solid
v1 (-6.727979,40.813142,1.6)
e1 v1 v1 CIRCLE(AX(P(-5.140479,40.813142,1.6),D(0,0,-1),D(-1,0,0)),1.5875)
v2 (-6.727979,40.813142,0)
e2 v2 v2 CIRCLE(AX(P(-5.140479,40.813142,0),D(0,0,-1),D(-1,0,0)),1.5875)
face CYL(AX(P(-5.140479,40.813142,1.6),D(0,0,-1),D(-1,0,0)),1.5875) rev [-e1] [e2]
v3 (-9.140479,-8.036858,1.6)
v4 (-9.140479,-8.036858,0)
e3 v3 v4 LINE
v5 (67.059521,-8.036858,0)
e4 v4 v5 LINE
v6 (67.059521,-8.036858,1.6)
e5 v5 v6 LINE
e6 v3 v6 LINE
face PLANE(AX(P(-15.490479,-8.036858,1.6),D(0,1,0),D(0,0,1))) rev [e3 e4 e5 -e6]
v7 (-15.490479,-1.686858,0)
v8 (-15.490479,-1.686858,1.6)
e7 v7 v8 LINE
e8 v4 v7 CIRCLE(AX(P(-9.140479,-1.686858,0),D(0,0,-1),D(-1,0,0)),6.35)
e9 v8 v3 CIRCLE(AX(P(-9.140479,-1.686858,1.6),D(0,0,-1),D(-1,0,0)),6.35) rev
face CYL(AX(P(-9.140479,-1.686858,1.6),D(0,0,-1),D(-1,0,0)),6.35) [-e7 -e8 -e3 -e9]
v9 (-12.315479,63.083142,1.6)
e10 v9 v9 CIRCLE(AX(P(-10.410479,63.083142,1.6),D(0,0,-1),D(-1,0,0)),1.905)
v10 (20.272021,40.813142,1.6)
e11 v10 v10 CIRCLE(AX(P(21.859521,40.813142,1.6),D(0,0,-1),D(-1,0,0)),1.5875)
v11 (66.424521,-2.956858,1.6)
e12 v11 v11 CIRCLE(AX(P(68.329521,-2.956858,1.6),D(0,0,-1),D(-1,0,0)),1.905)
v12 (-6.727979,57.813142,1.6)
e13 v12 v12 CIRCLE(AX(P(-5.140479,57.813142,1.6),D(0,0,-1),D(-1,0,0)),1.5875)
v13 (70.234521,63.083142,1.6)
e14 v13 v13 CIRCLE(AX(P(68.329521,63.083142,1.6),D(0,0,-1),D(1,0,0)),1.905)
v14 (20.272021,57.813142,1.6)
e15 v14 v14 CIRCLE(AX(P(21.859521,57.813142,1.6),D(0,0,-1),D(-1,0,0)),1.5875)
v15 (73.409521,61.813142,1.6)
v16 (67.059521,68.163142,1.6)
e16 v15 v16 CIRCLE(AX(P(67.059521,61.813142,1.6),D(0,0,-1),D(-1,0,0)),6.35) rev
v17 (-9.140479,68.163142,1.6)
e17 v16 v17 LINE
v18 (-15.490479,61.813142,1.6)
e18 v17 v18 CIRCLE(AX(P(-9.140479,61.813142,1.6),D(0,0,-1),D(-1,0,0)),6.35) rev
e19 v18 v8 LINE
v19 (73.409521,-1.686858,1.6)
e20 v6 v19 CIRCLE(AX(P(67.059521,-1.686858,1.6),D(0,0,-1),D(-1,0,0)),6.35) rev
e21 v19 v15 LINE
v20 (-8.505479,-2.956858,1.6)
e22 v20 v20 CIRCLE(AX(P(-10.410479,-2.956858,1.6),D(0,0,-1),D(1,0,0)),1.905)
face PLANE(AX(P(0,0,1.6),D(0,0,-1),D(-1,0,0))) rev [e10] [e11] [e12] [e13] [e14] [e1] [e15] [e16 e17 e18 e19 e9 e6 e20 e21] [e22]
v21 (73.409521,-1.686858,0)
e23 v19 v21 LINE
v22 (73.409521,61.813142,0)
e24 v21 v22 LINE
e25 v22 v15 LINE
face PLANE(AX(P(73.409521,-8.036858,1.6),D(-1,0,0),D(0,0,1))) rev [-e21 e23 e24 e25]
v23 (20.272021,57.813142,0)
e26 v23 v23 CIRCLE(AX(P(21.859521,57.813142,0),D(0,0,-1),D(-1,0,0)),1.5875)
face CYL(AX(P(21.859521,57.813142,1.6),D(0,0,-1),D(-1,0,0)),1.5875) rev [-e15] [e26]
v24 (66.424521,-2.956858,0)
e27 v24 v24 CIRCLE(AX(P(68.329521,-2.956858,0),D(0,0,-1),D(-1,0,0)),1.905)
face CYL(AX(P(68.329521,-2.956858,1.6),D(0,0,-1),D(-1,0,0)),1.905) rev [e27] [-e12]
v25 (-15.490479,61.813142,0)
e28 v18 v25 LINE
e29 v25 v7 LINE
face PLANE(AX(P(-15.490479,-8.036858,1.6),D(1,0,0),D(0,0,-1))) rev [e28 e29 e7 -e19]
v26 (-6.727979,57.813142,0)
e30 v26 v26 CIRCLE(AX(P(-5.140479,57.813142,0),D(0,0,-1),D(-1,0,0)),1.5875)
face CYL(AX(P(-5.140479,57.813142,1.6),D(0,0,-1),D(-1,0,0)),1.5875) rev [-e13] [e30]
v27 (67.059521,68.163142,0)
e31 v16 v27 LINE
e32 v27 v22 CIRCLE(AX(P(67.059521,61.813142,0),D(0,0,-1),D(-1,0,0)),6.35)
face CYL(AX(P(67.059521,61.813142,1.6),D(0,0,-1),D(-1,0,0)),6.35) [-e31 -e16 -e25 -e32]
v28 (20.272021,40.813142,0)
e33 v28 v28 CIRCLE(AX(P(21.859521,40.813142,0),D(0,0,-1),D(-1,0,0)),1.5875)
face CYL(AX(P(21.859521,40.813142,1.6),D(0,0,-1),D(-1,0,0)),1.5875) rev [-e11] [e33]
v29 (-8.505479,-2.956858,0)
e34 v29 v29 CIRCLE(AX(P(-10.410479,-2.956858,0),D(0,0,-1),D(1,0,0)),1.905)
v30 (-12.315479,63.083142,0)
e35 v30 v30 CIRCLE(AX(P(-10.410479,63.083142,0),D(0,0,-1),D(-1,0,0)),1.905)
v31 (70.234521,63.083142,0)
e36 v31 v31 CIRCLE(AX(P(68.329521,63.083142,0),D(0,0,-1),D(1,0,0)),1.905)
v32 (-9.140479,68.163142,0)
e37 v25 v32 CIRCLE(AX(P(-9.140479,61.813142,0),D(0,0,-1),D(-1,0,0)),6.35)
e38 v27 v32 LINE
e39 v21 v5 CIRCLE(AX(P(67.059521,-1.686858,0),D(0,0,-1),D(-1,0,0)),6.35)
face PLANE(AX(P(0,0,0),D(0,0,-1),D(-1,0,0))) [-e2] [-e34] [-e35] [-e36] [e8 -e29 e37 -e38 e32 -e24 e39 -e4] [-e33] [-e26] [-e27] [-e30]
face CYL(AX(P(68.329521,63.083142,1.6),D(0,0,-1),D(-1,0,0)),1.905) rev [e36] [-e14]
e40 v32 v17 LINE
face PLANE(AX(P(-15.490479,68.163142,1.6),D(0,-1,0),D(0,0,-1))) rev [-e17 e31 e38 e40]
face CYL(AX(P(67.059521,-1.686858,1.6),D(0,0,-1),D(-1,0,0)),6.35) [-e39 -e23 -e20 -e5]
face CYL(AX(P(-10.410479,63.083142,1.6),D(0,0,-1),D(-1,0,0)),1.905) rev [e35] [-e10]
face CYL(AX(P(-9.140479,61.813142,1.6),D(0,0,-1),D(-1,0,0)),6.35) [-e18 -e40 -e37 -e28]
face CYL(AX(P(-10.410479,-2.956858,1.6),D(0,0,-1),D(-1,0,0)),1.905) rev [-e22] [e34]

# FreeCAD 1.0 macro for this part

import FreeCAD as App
import Part
import Sketcher
Q = App.Units.Quantity


def edges_at(feature, points):
    """Names of the edges that pass closest to the given points."""
    edges = feature.Shape.Edges
    near = lambda p: min(range(len(edges)), key=lambda i: edges[i].distToShape(Part.Vertex(*p))[0])
    return sorted({f"Edge{near(p) + 1}" for p in points})

doc = App.newDocument("Part")
params = doc.addObject("Spreadsheet::Sheet", "Params")
for row, (alias, value) in enumerate([
    ("sketch1_height", "3 in"),
    ("sketch1_width", "3.5 in"),
    ("pad1_length", "1.6 mm"),
    ("sketch2_diameter", "0.125 in"),
    ("sketch3_diameter", "0.15 in"),
    ("fillet_radius", "0.25 in"),
], start=1):
    params.set(f"A{row}", alias)
    params.set(f"B{row}", "=" + value)
    params.setAlias(f"B{row}", alias)

body = doc.addObject("PartDesign::Body", "Body")

# Sketch on XY plane
sketch1 = body.newObject("Sketcher::SketchObject", "Sketch")
sketch1.AttachmentSupport = (doc.getObject("XY_Plane"), [""])
sketch1.MapMode = "FlatFace"
sketch1.addGeometry(Part.LineSegment(App.Vector(-15, 68, 0), App.Vector(-15, -8, 0)), False)
sketch1.addGeometry(Part.LineSegment(App.Vector(-15, -8, 0), App.Vector(73, -8, 0)), False)
sketch1.addGeometry(Part.LineSegment(App.Vector(73, -8, 0), App.Vector(73, 68, 0)), False)
sketch1.addGeometry(Part.LineSegment(App.Vector(73, 68, 0), App.Vector(-15, 68, 0)), False)
sketch1.addConstraint(Sketcher.Constraint("Coincident", 0, 2, 1, 1))
sketch1.addConstraint(Sketcher.Constraint("Coincident", 1, 2, 2, 1))
sketch1.addConstraint(Sketcher.Constraint("Coincident", 2, 2, 3, 1))
sketch1.addConstraint(Sketcher.Constraint("Coincident", 3, 2, 0, 1))
sketch1.addConstraint(Sketcher.Constraint("Vertical", 0))
sketch1.addConstraint(Sketcher.Constraint("Horizontal", 1))
sketch1.addConstraint(Sketcher.Constraint("Vertical", 2))
sketch1.addConstraint(Sketcher.Constraint("Horizontal", 3))
sketch1.addConstraint(Sketcher.Constraint("DistanceY", 0, 2, 0, 1, Q("3 in")))
sketch1.addConstraint(Sketcher.Constraint("DistanceX", 1, 1, 1, 2, Q("3.5 in")))
sketch1.addConstraint(Sketcher.Constraint("DistanceX", 0, 2, -1, 1, Q("15.490479 mm")))
sketch1.addConstraint(Sketcher.Constraint("DistanceY", 0, 2, -1, 1, Q("8.036858 mm")))
sketch1.setExpression("Constraints[8]", "Params.sketch1_height")
sketch1.setExpression("Constraints[9]", "Params.sketch1_width")
pad1 = body.newObject("PartDesign::Pad", "Pad")
pad1.Profile = sketch1
pad1.setExpression("Length", "Params.pad1_length")

# Sketch on XY plane
sketch2 = body.newObject("Sketcher::SketchObject", "Sketch001")
sketch2.AttachmentSupport = (doc.getObject("XY_Plane"), [""])
sketch2.MapMode = "FlatFace"
sketch2.addGeometry(Part.Circle(App.Vector(-5.1, 57.8, 0), App.Vector(0, 0, 1), 1.6), False)
sketch2.addGeometry(Part.Circle(App.Vector(21.9, 57.8, 0), App.Vector(0, 0, 1), 1.6), False)
sketch2.addGeometry(Part.Circle(App.Vector(21.9, 40.8, 0), App.Vector(0, 0, 1), 1.6), False)
sketch2.addGeometry(Part.Circle(App.Vector(-5.1, 40.8, 0), App.Vector(0, 0, 1), 1.6), False)
sketch2.addConstraint(Sketcher.Constraint("Equal", 0, 1))
sketch2.addConstraint(Sketcher.Constraint("Equal", 1, 2))
sketch2.addConstraint(Sketcher.Constraint("Equal", 2, 3))
sketch2.addConstraint(Sketcher.Constraint("Horizontal", 0, 3, 1, 3))
sketch2.addConstraint(Sketcher.Constraint("Horizontal", 2, 3, 3, 3))
sketch2.addConstraint(Sketcher.Constraint("Vertical", 1, 3, 2, 3))
sketch2.addConstraint(Sketcher.Constraint("Vertical", 0, 3, 3, 3))
sketch2.addConstraint(Sketcher.Constraint("Diameter", 0, Q("0.125 in")))
sketch2.addConstraint(Sketcher.Constraint("DistanceX", 0, 3, 1, 3, Q("27 mm")))
sketch2.addConstraint(Sketcher.Constraint("DistanceY", 2, 3, 1, 3, Q("17 mm")))
sketch2.addConstraint(Sketcher.Constraint("DistanceX", 0, 3, -1, 1, Q("5.140479 mm")))
sketch2.addConstraint(Sketcher.Constraint("DistanceY", -1, 1, 0, 3, Q("57.813142 mm")))
sketch2.setExpression("Constraints[7]", "Params.sketch2_diameter")
pocket1 = body.newObject("PartDesign::Pocket", "Pocket")
pocket1.Profile = sketch2
pocket1.Type = "ThroughAll"
pocket1.Reversed = True

# Sketch on XY plane
sketch3 = body.newObject("Sketcher::SketchObject", "Sketch002")
sketch3.AttachmentSupport = (doc.getObject("XY_Plane"), [""])
sketch3.MapMode = "FlatFace"
sketch3.addGeometry(Part.Circle(App.Vector(-10.4, 63.1, 0), App.Vector(0, 0, 1), 1.9), False)
sketch3.addGeometry(Part.Circle(App.Vector(68.3, 63.1, 0), App.Vector(0, 0, 1), 1.9), False)
sketch3.addGeometry(Part.Circle(App.Vector(68.3, -3, 0), App.Vector(0, 0, 1), 1.9), False)
sketch3.addGeometry(Part.Circle(App.Vector(-10.4, -3, 0), App.Vector(0, 0, 1), 1.9), False)
sketch3.addConstraint(Sketcher.Constraint("Equal", 0, 1))
sketch3.addConstraint(Sketcher.Constraint("Equal", 1, 2))
sketch3.addConstraint(Sketcher.Constraint("Equal", 2, 3))
sketch3.addConstraint(Sketcher.Constraint("Horizontal", 0, 3, 1, 3))
sketch3.addConstraint(Sketcher.Constraint("Horizontal", 2, 3, 3, 3))
sketch3.addConstraint(Sketcher.Constraint("Vertical", 1, 3, 2, 3))
sketch3.addConstraint(Sketcher.Constraint("Vertical", 0, 3, 3, 3))
sketch3.addConstraint(Sketcher.Constraint("Diameter", 0, Q("0.15 in")))
sketch3.addConstraint(Sketcher.Constraint("DistanceX", 0, 3, 1, 3, Q("3.1 in")))
sketch3.addConstraint(Sketcher.Constraint("DistanceY", 2, 3, 1, 3, Q("2.6 in")))
sketch3.addConstraint(Sketcher.Constraint("DistanceX", 0, 3, -1, 1, Q("10.410479 mm")))
sketch3.addConstraint(Sketcher.Constraint("DistanceY", -1, 1, 0, 3, Q("63.083142 mm")))
sketch3.setExpression("Constraints[7]", "Params.sketch3_diameter")
pocket2 = body.newObject("PartDesign::Pocket", "Pocket001")
pocket2.Profile = sketch3
pocket2.Type = "ThroughAll"
pocket2.Reversed = True
doc.recompute()

fillet = body.newObject("PartDesign::Fillet", "Fillet")
fillet.Base = (pocket2, edges_at(pocket2, [
    (-15.49, 68.163, 0.8),
    (73.41, 68.163, 0.8),
    (73.41, -8.037, 0.8),
    (-15.49, -8.037, 0.8),
]))
fillet.setExpression("Radius", "Params.fillet_radius")

doc.recompute()
